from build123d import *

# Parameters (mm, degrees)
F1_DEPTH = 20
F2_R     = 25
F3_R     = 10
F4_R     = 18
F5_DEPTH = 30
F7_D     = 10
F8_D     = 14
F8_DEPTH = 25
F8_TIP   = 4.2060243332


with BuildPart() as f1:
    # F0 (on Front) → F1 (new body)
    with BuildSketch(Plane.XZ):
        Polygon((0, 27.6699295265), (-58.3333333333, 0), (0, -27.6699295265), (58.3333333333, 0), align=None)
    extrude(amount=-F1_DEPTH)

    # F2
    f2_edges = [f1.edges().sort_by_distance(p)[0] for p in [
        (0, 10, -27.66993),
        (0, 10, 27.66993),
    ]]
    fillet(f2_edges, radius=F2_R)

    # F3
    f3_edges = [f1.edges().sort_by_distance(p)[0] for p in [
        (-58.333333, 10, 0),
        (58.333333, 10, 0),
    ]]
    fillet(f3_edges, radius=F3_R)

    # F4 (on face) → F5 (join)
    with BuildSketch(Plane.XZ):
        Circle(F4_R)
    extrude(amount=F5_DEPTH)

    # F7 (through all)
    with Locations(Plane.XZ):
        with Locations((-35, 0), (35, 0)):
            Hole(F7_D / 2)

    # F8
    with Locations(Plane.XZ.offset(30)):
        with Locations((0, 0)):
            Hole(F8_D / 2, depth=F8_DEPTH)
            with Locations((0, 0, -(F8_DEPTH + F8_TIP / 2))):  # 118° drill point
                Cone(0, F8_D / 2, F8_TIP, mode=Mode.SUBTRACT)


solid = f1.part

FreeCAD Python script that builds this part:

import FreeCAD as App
import Part
import Sketcher

V = App.Vector
Q = App.Units.Quantity


def edges_at(feature, points):
    """Names of the edges that pass closest to the given points."""
    edges = feature.Shape.Edges
    near = lambda p: min(range(len(edges)), key=lambda i: edges[i].distToShape(Part.Vertex(*p))[0])
    return sorted({f"Edge{near(p) + 1}" for p in points})


def add_polygon(sketch, points):
    """Adds a closed chain of lines whose ends are joined by coincident constraints."""
    first, n = sketch.GeometryCount, len(points)
    for a, b in zip(points, points[1:] + points[:1]):
        sketch.addGeometry(Part.LineSegment(App.Vector(*a, 0), App.Vector(*b, 0)), False)
    for i in range(n):
        sketch.addConstraint(Sketcher.Constraint("Coincident", first + i, 2, first + (i + 1) % n, 1))

doc = App.newDocument("Part")
body = doc.addObject("PartDesign::Body", "Body")

# Sketch on XZ plane
sketch1 = doc.addObject("Sketcher::SketchObject", "Sketch")
body.addObject(sketch1)
sketch1.AttachmentSupport = (doc.XZ_Plane, [""])
sketch1.MapMode = "FlatFace"
add_polygon(sketch1, [(0, 28), (-58, 0), (0, -28), (58, 0)])  # lines 0-3
sketch1.addConstraint(Sketcher.Constraint("Symmetric", 0, 2, 2, 2, -1, 1))
sketch1.addConstraint(Sketcher.Constraint("Symmetric", 1, 2, 3, 2, -1, 1))
sketch1.addConstraint(Sketcher.Constraint("PointOnObject", 0, 2, -1))
sketch1.addConstraint(Sketcher.Constraint("PointOnObject", 1, 2, -2))
sketch1.addConstraint(Sketcher.Constraint("Distance", 0, Q("64.563169 mm")))
sketch1.addConstraint(Sketcher.Constraint("DistanceY", 1, 2, -1, 1, Q("27.66993 mm")))
pad1 = doc.addObject("PartDesign::Pad", "Pad")
body.addObject(pad1)
pad1.Profile = sketch1
pad1.Length = 20
pad1.Reversed = True
doc.recompute()

fillet = doc.addObject("PartDesign::Fillet", "Fillet")
body.addObject(fillet)
fillet.Base = (pad1, edges_at(pad1, [(0, 10, -27.67), (0, 10, 27.67)]))
fillet.Radius = 25
doc.recompute()

fillet2 = doc.addObject("PartDesign::Fillet", "Fillet001")
body.addObject(fillet2)
fillet2.Base = (fillet, edges_at(fillet, [(-58.333, 10, 0), (58.333, 10, 0)]))
fillet2.Radius = 10

# Sketch on XZ plane
sketch2 = doc.addObject("Sketcher::SketchObject", "Sketch001")
body.addObject(sketch2)
sketch2.AttachmentSupport = (doc.XZ_Plane, [""])
sketch2.MapMode = "FlatFace"
sketch2.addGeometry(Part.Circle(V(0, 0, 0), V(0, 0, 1), 18), False)
sketch2.addConstraint(Sketcher.Constraint("Coincident", 0, 3, -1, 1))
sketch2.addConstraint(Sketcher.Constraint("Diameter", 0, Q("36 mm")))
pad2 = doc.addObject("PartDesign::Pad", "Pad001")
body.addObject(pad2)
pad2.Profile = sketch2
pad2.Length = 30

# Sketch on XZ plane
sketch3 = doc.addObject("Sketcher::SketchObject", "Sketch002")
body.addObject(sketch3)
sketch3.AttachmentSupport = (doc.XZ_Plane, [""])
sketch3.MapMode = "FlatFace"
sketch3.addGeometry(Part.Circle(V(-35, 0, 0), V(0, 0, 1), 5), False)
sketch3.addGeometry(Part.Circle(V(35, 0, 0), V(0, 0, 1), 5), False)
sketch3.addConstraint(Sketcher.Constraint("Equal", 0, 1))
sketch3.addConstraint(Sketcher.Constraint("Symmetric", 0, 3, 1, 3, -1, 1))
sketch3.addConstraint(Sketcher.Constraint("PointOnObject", 0, 3, -1))
sketch3.addConstraint(Sketcher.Constraint("Diameter", 0, Q("10 mm")))
sketch3.addConstraint(Sketcher.Constraint("DistanceX", 0, 3, -1, 1, Q("35 mm")))
doc.recompute()
hole = doc.addObject("PartDesign::Hole", "Hole")
body.addObject(hole)
hole.Profile = sketch3
hole.ThreadType = "None"
hole.Diameter = 10
hole.DepthType = "ThroughAll"

# Sketch on XZ plane
sketch4 = doc.addObject("Sketcher::SketchObject", "Sketch003")
body.addObject(sketch4)
sketch4.AttachmentSupport = (doc.XZ_Plane, [""])
sketch4.MapMode = "FlatFace"
sketch4.AttachmentOffset = App.Placement(V(0, 0, 30), App.Rotation())
sketch4.addGeometry(Part.Circle(V(0, 0, 0), V(0, 0, 1), 7), False)
sketch4.addConstraint(Sketcher.Constraint("Coincident", 0, 3, -1, 1))
sketch4.addConstraint(Sketcher.Constraint("Diameter", 0, Q("14 mm")))
doc.recompute()
hole2 = doc.addObject("PartDesign::Hole", "Hole001")
body.addObject(hole2)
hole2.Profile = sketch4
hole2.ThreadType = "None"
hole2.Diameter = 14
hole2.DepthType = "Dimension"
hole2.Depth = 25
hole2.DrillPoint = "Angled"
hole2.DrillPointAngle = 118

doc.recompute()
